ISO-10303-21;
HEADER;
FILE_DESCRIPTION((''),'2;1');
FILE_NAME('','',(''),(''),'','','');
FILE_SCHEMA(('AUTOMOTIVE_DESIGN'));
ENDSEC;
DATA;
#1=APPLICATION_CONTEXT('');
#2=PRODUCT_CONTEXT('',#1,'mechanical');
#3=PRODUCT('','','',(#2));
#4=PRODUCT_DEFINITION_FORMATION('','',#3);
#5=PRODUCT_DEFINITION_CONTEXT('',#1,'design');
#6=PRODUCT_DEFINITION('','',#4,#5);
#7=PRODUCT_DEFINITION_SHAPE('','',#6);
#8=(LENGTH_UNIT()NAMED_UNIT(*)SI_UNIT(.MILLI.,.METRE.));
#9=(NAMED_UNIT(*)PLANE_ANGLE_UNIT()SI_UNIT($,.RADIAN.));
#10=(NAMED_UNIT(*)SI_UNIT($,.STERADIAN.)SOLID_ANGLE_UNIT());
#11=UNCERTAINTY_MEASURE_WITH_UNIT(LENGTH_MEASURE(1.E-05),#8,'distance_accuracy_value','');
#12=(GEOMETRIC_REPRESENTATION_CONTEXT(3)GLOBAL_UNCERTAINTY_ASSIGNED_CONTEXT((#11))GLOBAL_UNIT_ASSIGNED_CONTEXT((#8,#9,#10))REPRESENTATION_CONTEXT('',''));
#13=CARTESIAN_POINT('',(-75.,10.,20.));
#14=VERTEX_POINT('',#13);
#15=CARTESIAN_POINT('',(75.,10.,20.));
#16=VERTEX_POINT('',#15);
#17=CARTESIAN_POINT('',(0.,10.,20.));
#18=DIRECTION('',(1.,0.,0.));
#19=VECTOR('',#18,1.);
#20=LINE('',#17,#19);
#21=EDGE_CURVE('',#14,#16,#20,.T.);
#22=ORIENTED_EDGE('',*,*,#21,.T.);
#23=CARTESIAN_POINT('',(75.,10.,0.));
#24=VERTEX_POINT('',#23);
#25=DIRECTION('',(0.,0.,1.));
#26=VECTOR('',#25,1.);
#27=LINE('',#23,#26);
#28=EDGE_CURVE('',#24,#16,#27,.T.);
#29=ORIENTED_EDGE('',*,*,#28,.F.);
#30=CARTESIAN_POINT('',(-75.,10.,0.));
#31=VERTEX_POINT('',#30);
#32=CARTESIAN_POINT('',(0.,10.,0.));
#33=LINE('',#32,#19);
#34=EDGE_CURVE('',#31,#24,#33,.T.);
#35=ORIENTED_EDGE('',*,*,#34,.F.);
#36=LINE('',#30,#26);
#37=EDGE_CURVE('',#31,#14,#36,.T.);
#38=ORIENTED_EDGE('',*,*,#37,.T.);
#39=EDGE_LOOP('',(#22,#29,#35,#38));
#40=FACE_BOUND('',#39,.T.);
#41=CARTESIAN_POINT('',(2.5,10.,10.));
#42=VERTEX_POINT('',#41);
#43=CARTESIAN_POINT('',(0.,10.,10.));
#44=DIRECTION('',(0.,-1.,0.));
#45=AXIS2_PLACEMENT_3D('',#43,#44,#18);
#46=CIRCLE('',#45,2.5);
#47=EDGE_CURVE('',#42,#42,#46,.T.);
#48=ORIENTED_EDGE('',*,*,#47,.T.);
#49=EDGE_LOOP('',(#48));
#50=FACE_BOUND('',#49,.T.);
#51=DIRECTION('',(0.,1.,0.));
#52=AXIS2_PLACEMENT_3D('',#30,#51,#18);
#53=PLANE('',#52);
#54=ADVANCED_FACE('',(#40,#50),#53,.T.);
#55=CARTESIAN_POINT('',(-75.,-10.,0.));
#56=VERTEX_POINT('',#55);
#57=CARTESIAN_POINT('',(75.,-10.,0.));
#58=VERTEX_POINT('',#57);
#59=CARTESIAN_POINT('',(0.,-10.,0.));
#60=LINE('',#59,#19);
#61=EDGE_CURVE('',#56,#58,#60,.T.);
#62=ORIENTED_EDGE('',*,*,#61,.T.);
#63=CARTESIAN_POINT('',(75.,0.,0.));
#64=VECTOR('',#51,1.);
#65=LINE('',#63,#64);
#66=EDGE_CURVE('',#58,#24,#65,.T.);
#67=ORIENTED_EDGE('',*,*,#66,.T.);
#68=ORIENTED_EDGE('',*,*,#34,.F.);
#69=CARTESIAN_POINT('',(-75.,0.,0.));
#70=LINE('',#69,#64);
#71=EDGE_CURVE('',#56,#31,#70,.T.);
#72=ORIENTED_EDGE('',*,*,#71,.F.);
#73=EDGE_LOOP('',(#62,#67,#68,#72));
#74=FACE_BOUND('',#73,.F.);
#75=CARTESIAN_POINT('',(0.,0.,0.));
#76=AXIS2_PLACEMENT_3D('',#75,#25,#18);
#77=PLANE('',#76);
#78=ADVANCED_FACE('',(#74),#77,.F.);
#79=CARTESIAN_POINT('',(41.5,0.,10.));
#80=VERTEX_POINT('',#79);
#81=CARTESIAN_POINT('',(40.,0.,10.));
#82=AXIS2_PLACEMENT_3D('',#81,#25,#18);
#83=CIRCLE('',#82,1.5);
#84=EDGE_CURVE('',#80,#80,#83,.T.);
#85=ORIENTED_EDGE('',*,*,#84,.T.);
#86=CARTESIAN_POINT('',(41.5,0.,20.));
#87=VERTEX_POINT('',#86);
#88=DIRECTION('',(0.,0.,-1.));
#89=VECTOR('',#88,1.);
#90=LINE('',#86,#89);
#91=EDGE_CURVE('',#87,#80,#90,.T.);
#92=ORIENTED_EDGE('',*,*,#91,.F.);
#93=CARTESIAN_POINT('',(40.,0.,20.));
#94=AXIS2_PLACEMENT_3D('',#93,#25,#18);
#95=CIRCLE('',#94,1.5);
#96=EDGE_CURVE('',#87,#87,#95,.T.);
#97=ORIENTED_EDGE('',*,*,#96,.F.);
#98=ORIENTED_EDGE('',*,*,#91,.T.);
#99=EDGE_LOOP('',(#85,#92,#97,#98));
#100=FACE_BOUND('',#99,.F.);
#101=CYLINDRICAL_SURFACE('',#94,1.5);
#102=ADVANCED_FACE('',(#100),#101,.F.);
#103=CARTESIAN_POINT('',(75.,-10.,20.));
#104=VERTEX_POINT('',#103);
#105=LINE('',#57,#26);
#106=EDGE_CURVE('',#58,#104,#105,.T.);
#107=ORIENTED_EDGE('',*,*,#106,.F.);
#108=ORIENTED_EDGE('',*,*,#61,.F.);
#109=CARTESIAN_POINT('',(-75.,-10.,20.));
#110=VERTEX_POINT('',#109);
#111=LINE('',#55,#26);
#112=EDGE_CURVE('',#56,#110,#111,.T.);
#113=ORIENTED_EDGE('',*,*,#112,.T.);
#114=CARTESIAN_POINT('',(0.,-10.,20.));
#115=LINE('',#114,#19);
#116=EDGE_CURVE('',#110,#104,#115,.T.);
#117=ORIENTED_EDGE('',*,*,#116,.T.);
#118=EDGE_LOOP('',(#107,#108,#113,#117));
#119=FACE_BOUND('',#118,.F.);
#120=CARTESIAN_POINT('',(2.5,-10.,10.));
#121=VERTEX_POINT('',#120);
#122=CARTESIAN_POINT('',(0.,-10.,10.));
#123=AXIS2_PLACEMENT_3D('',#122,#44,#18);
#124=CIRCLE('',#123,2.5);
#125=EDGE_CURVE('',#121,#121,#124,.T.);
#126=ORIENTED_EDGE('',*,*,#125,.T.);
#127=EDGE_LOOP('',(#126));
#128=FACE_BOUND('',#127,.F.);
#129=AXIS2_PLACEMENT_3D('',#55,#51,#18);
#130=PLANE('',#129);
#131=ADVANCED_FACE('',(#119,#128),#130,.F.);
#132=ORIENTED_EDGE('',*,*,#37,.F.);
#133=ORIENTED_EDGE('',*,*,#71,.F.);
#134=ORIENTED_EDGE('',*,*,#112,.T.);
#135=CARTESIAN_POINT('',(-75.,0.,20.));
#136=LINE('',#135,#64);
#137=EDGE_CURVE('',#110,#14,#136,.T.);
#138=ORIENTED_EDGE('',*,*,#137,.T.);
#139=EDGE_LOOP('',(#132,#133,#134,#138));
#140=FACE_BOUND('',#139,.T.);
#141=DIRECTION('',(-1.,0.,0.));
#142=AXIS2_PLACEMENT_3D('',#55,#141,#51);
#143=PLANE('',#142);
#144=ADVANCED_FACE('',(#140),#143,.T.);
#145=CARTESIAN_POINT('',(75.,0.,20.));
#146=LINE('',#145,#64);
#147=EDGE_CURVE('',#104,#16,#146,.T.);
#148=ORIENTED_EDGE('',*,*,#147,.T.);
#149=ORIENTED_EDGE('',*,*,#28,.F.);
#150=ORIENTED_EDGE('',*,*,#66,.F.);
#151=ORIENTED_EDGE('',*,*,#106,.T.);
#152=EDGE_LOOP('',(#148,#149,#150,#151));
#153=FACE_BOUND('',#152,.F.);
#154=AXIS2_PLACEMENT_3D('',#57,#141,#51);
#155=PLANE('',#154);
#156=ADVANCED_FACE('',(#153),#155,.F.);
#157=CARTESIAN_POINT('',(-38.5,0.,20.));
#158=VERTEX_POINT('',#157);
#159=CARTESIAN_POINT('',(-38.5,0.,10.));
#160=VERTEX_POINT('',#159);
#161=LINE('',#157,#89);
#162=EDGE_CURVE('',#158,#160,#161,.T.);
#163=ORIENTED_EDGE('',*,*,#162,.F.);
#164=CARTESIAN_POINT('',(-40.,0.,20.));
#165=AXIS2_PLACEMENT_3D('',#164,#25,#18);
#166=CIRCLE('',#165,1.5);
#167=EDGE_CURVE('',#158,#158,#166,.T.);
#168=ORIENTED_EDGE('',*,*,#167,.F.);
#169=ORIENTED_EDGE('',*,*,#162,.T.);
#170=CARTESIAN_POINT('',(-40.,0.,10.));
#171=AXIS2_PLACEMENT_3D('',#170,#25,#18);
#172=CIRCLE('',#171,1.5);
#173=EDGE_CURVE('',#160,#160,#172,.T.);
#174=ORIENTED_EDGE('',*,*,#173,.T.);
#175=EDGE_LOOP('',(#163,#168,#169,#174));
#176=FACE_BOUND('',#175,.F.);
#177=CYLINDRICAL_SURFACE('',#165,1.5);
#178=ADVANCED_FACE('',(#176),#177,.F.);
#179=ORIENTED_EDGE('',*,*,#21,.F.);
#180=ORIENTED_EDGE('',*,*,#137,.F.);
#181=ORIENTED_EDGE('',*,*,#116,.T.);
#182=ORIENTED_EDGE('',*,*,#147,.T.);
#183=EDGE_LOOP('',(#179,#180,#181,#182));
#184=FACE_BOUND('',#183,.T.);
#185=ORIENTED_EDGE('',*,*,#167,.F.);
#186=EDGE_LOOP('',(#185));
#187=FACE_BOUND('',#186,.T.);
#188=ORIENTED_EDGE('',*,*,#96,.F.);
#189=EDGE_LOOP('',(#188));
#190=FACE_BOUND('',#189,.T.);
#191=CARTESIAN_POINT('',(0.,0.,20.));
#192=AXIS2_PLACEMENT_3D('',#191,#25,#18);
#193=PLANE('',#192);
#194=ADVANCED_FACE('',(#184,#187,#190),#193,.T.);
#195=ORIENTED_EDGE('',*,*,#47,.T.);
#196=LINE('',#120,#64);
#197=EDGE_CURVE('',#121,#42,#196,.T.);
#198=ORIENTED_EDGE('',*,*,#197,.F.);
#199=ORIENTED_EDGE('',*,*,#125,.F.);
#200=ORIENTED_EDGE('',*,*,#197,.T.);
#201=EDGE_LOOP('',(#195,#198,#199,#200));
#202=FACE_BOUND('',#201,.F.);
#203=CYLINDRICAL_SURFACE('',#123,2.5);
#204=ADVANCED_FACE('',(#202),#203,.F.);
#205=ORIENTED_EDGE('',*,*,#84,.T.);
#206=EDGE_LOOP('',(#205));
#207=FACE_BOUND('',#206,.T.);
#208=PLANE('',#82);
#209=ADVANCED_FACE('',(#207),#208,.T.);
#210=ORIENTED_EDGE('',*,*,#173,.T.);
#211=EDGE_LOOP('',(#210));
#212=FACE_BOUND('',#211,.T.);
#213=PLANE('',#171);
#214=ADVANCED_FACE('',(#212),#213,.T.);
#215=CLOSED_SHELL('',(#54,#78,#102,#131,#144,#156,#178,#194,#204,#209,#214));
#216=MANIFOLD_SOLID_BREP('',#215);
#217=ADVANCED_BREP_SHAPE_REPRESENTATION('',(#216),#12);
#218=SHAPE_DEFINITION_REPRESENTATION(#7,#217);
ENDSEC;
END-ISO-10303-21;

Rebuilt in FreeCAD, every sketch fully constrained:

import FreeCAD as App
import Part
import Sketcher

V = App.Vector

doc = App.newDocument("Part")
body = doc.addObject("PartDesign::Body", "Body")

# Sketch on XY plane
sketch1 = doc.addObject("Sketcher::SketchObject", "Sketch")
body.addObject(sketch1)
sketch1.AttachmentSupport = (doc.XY_Plane, [""])
sketch1.MapMode = "FlatFace"
sketch1.addGeometry([
    Part.LineSegment(V(-75, 10, 0), V(-75, -10, 0)),
    Part.LineSegment(V(-75, -10, 0), V(75, -10, 0)),
    Part.LineSegment(V(75, -10, 0), V(75, 10, 0)),
    Part.LineSegment(V(75, 10, 0), V(-75, 10, 0)),
], False)
sketch1.addConstraint([
    Sketcher.Constraint("Coincident", 0, 2, 1, 1),
    Sketcher.Constraint("Coincident", 1, 2, 2, 1),
    Sketcher.Constraint("Coincident", 2, 2, 3, 1),
    Sketcher.Constraint("Coincident", 3, 2, 0, 1),
    Sketcher.Constraint("Vertical", 0),
    Sketcher.Constraint("Horizontal", 1),
    Sketcher.Constraint("Vertical", 2),
    Sketcher.Constraint("Horizontal", 3),
    Sketcher.Constraint("Symmetric", 0, 2, 2, 2, -1, 1),
    Sketcher.Constraint("DistanceX", 1, 1, 1, 2, 150.0),
    Sketcher.Constraint("DistanceY", 0, 2, 0, 1, 20.0),
])
pad1 = doc.addObject("PartDesign::Pad", "Pad")
body.addObject(pad1)
pad1.Profile = sketch1
pad1.Length = 20

# Sketch on XY plane
sketch2 = doc.addObject("Sketcher::SketchObject", "Sketch001")
body.addObject(sketch2)
sketch2.AttachmentSupport = (doc.XY_Plane, [""])
sketch2.MapMode = "FlatFace"
sketch2.AttachmentOffset = App.Placement(V(0, 0, 20), App.Rotation())
sketch2.addGeometry([
    Part.Circle(V(40, 0, 0), V(0, 0, 1), 1.5),
    Part.Circle(V(-40, 0, 0), V(0, 0, 1), 1.5),
], False)
sketch2.addConstraint([
    Sketcher.Constraint("Equal", 0, 1),
    Sketcher.Constraint("Symmetric", 0, 3, 1, 3, -1, 1),
    Sketcher.Constraint("PointOnObject", 0, 3, -1),
    Sketcher.Constraint("Diameter", 0, 3.0),
    Sketcher.Constraint("DistanceX", -1, 1, 0, 3, 40.0),
])
pocket1 = doc.addObject("PartDesign::Pocket", "Pocket")
body.addObject(pocket1)
pocket1.Profile = sketch2
pocket1.Length = 10

# Sketch on XZ plane
sketch3 = doc.addObject("Sketcher::SketchObject", "Sketch002")
body.addObject(sketch3)
sketch3.AttachmentSupport = (doc.XZ_Plane, [""])
sketch3.MapMode = "FlatFace"
sketch3.AttachmentOffset = App.Placement(V(0, 0, 10), App.Rotation())
sketch3.addGeometry(Part.Circle(V(0, 10, 0), V(0, 0, 1), 2.5), False)
sketch3.addConstraint([
    Sketcher.Constraint("PointOnObject", 0, 3, -2),
    Sketcher.Constraint("Diameter", 0, 5.0),
    Sketcher.Constraint("DistanceY", -1, 1, 0, 3, 10.0),
])
pocket2 = doc.addObject("PartDesign::Pocket", "Pocket001")
body.addObject(pocket2)
pocket2.Profile = sketch3
pocket2.Length = 25

doc.recompute()
